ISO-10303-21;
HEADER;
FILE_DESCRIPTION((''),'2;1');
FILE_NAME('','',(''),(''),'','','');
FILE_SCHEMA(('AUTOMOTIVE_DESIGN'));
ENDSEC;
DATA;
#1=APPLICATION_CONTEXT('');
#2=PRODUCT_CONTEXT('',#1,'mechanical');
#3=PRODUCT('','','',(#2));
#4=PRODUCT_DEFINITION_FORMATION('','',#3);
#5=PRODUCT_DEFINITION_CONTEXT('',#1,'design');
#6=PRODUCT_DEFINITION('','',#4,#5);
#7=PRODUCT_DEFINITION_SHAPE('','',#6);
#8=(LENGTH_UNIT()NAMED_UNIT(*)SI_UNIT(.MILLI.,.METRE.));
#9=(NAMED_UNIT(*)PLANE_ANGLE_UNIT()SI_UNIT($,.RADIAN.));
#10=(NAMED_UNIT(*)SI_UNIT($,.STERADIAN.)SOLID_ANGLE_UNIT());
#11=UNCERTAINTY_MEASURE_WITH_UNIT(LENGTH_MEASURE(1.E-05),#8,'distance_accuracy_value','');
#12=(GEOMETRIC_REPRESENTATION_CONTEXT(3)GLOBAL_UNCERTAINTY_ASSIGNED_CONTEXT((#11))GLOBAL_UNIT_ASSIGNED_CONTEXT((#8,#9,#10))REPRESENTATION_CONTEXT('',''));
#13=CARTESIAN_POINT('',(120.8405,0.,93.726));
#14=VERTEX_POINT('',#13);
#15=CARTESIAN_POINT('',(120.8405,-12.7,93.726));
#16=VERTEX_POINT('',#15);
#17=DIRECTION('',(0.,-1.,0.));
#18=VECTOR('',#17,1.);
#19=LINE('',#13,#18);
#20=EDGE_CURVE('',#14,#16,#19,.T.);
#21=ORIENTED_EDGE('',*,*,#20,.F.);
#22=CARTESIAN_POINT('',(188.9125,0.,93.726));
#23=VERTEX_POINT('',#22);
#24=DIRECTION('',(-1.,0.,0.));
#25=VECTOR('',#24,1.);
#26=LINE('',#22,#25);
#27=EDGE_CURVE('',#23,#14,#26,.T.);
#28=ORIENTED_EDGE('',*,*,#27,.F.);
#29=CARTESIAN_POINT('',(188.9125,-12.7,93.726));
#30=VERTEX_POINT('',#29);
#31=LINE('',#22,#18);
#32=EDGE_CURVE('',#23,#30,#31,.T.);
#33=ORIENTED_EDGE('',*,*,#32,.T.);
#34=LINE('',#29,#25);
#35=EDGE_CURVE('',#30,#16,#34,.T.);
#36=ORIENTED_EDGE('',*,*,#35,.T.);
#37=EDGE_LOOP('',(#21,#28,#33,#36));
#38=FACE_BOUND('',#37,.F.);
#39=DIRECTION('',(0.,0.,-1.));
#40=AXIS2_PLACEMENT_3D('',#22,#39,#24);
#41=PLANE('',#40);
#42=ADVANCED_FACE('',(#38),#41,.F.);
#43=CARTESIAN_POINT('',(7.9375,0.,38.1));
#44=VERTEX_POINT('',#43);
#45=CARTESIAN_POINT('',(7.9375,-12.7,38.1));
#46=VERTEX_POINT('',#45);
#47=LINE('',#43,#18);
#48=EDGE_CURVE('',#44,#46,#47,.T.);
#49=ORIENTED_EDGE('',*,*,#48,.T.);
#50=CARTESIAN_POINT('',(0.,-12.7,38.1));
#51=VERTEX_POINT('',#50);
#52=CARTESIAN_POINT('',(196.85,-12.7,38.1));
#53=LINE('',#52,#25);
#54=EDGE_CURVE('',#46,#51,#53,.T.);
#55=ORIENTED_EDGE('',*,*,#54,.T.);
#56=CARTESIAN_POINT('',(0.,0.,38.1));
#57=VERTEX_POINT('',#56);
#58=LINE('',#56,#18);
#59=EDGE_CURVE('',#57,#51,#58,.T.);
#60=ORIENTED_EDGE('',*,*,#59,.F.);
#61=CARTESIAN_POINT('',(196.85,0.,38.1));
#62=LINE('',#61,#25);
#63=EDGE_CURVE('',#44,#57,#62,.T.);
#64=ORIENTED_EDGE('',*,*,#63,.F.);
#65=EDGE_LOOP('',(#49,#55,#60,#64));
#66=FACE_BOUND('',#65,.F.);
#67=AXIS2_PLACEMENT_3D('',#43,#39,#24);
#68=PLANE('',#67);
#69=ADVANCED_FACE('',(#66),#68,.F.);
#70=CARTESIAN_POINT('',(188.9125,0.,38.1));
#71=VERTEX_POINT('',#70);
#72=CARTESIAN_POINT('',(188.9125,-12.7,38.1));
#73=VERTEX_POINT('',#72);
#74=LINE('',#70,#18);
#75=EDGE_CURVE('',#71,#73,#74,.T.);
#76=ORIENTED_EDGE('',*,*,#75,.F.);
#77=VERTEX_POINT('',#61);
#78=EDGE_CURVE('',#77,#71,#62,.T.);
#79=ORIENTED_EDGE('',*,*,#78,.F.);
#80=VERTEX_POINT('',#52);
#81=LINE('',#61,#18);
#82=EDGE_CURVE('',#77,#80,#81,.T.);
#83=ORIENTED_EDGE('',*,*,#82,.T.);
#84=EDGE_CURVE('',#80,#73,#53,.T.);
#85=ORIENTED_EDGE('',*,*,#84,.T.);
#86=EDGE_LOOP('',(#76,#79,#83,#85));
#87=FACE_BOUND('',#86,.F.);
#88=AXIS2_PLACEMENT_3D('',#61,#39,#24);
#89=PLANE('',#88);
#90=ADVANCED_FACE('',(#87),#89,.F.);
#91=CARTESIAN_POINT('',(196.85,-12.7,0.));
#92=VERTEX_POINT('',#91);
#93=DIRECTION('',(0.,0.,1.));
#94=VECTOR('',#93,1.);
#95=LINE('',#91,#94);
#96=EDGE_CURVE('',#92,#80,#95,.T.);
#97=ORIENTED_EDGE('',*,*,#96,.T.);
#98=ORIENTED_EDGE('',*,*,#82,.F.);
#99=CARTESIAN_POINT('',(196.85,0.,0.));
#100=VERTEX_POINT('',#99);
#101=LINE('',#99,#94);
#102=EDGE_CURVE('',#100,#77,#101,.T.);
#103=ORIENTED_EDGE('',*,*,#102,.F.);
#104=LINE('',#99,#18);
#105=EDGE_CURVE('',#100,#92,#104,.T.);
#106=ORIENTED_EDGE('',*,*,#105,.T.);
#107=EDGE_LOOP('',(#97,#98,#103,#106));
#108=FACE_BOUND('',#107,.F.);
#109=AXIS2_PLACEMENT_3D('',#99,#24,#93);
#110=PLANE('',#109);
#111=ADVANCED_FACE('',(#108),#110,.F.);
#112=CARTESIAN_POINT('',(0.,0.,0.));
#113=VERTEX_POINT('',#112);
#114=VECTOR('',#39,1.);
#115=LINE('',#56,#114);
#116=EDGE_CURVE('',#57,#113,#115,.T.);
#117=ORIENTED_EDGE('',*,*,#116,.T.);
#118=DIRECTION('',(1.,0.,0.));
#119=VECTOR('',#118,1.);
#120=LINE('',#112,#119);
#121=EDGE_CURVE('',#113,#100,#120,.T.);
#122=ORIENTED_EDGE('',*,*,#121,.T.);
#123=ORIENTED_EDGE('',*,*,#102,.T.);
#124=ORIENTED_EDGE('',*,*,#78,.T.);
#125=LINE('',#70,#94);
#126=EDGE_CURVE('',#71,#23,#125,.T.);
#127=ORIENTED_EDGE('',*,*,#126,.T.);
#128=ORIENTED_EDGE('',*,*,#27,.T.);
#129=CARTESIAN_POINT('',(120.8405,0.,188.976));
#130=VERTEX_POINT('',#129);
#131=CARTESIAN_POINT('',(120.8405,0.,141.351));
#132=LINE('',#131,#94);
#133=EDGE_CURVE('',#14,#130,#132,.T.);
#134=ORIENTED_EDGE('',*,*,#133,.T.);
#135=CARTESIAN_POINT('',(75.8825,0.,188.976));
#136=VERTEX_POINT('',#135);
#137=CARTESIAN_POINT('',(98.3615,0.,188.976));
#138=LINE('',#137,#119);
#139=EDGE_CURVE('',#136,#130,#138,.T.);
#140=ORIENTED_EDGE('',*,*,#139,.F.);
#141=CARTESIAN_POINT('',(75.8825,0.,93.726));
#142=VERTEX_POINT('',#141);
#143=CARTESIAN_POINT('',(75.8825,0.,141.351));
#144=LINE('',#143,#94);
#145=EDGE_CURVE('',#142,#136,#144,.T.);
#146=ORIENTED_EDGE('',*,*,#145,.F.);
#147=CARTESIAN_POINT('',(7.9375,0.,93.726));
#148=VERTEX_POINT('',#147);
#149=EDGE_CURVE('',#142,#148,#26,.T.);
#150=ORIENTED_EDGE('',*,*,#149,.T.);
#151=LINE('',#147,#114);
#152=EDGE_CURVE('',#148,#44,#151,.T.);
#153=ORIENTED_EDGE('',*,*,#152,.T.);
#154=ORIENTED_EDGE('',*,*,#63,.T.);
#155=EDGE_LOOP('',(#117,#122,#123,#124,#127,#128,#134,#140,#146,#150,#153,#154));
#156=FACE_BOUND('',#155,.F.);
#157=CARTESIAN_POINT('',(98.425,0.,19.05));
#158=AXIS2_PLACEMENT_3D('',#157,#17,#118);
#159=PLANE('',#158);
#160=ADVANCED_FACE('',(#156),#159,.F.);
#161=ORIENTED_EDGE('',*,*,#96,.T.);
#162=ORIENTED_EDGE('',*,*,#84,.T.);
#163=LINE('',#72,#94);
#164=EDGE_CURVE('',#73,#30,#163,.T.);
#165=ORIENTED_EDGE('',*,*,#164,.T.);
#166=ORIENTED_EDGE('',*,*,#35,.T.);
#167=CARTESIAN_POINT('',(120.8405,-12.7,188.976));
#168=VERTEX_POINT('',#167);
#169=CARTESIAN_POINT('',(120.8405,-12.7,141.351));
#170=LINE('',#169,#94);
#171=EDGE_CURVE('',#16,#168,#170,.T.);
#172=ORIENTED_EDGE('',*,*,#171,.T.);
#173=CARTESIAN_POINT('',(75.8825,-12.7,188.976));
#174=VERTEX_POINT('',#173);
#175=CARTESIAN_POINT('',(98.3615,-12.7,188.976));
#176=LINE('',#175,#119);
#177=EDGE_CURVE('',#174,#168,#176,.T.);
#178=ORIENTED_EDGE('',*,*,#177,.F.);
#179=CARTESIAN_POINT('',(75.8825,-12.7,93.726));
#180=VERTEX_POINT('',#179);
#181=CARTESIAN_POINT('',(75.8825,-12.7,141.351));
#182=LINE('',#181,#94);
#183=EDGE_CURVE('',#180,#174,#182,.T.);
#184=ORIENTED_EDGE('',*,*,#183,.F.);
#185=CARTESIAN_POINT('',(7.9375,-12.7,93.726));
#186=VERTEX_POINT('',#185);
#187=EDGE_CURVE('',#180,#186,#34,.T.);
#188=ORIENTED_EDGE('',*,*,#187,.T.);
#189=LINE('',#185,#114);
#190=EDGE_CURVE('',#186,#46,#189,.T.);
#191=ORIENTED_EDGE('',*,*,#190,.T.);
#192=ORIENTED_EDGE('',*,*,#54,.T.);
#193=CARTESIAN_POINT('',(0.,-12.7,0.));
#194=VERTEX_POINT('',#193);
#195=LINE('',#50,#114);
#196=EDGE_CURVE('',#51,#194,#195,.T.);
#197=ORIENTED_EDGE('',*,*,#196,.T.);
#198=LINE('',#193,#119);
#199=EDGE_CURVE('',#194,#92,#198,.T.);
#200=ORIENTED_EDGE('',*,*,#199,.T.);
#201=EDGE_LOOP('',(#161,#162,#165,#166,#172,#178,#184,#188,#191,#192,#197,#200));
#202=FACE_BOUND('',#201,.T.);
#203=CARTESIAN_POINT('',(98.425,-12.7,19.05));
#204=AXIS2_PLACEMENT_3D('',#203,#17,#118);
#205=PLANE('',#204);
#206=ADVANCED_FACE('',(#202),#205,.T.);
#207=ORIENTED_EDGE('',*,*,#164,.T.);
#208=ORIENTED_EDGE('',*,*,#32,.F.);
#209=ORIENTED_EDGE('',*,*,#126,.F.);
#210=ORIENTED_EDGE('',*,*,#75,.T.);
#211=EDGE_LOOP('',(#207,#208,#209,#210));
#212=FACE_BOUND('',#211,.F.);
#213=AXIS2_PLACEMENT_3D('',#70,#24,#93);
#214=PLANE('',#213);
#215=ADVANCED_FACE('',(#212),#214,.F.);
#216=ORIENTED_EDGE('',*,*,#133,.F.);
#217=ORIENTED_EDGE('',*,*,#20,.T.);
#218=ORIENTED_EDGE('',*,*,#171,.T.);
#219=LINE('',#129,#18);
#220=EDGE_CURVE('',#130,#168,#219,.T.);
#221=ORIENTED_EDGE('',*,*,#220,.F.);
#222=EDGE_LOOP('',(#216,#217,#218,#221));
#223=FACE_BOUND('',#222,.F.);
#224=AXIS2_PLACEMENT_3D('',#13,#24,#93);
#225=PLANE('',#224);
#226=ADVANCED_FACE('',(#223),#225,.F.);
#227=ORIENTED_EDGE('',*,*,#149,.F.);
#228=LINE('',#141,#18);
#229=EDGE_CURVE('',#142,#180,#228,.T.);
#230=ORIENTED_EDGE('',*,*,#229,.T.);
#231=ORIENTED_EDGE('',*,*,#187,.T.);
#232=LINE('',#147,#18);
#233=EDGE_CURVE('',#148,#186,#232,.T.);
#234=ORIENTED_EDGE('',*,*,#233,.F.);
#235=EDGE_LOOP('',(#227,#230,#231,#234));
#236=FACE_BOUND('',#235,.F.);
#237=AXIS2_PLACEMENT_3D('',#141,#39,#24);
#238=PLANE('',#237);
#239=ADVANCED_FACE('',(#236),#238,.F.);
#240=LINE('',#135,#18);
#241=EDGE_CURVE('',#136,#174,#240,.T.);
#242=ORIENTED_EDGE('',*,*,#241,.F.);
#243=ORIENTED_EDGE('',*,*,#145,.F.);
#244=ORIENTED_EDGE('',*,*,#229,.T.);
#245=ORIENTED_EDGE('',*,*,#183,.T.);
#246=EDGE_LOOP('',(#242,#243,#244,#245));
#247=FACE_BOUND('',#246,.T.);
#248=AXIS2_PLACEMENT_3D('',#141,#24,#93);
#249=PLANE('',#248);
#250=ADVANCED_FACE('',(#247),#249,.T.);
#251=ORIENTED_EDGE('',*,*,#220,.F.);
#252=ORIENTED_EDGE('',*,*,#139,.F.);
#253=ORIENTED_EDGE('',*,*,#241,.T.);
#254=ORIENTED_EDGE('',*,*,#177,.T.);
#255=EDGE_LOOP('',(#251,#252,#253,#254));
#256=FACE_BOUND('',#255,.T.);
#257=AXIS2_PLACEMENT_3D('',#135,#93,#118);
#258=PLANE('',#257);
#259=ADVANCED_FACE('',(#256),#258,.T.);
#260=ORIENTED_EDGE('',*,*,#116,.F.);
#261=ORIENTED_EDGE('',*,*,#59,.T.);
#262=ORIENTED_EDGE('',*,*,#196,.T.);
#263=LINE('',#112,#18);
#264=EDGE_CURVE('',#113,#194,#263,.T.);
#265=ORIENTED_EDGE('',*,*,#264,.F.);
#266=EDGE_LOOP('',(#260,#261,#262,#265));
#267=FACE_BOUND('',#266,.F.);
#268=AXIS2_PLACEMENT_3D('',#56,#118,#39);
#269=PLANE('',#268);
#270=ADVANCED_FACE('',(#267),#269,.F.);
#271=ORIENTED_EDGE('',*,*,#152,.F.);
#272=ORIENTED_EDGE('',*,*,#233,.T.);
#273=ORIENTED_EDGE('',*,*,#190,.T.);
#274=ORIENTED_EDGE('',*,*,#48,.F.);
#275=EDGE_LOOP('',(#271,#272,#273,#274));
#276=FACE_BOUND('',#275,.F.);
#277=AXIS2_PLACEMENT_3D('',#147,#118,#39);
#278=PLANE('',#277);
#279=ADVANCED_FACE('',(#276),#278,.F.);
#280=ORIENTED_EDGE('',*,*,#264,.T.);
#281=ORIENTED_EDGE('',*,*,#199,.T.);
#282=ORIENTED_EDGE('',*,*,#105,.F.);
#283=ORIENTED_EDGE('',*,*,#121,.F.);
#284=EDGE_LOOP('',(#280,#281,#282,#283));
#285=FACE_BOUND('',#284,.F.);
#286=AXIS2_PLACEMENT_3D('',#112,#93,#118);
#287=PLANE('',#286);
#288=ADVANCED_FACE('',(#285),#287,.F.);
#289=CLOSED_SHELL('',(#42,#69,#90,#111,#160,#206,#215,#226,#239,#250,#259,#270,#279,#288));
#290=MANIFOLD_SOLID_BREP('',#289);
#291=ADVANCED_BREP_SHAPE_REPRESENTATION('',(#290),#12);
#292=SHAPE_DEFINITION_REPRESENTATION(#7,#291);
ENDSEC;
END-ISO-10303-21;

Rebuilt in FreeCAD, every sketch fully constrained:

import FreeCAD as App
import Part
import Sketcher

V = App.Vector
Q = App.Units.Quantity


def add_polygon(sketch, points):
    """Adds a closed chain of lines whose ends are joined by coincident constraints."""
    first, n = sketch.GeometryCount, len(points)
    for a, b in zip(points, points[1:] + points[:1]):
        sketch.addGeometry(Part.LineSegment(App.Vector(*a, 0), App.Vector(*b, 0)), False)
    for i in range(n):
        sketch.addConstraint(Sketcher.Constraint("Coincident", first + i, 2, first + (i + 1) % n, 1))

doc = App.newDocument("Part")
params = doc.addObject("Spreadsheet::Sheet", "Params")
for row, (alias, value) in enumerate([
    ("sketch1_height", "1.5 in"),
    ("sketch1_width", "7.75 in"),
    ("sketch1_width2", "2.68 in"),
    ("sketch1_width3", "1.77 in"),
    ("sketch1_height2", "2.19 in"),
    ("pad1_length", "0.5 in"),
], start=1):
    params.set(f"A{row}", alias)
    params.set(f"B{row}", "=" + value)
    params.setAlias(f"B{row}", alias)

body = doc.addObject("PartDesign::Body", "Body")

# Sketch on XZ plane
sketch1 = doc.addObject("Sketcher::SketchObject", "Sketch")
body.addObject(sketch1)
sketch1.AttachmentSupport = (doc.XZ_Plane, [""])
sketch1.MapMode = "FlatFace"
add_polygon(sketch1, [(0, 38), (0, 0), (197, 0), (197, 38), (189, 38), (189, 94), (121, 94), (121, 189), (76, 189), (76, 94), (8, 94), (8, 38)])  # lines 0-11
sketch1.addConstraint(Sketcher.Constraint("Vertical", 0))
sketch1.addConstraint(Sketcher.Constraint("Horizontal", 1))
sketch1.addConstraint(Sketcher.Constraint("Vertical", 2))
sketch1.addConstraint(Sketcher.Constraint("Horizontal", 3))
sketch1.addConstraint(Sketcher.Constraint("Vertical", 4))
sketch1.addConstraint(Sketcher.Constraint("Horizontal", 5))
sketch1.addConstraint(Sketcher.Constraint("Vertical", 6))
sketch1.addConstraint(Sketcher.Constraint("Horizontal", 7))
sketch1.addConstraint(Sketcher.Constraint("Vertical", 8))
sketch1.addConstraint(Sketcher.Constraint("Horizontal", 9))
sketch1.addConstraint(Sketcher.Constraint("Vertical", 10))
sketch1.addConstraint(Sketcher.Constraint("Horizontal", 11))
sketch1.addConstraint(Sketcher.Constraint("Coincident", 0, 2, -1, 1))
sketch1.addConstraint(Sketcher.Constraint("Horizontal", 5, 2, 8, 2))
sketch1.addConstraint(Sketcher.Constraint("Horizontal", 3, 2, 10, 2))
sketch1.addConstraint(Sketcher.Constraint("Equal", 3, 11))
sketch1.addConstraint(Sketcher.Constraint("DistanceY", 0, 2, 0, 1, Q("1.5 in")))
sketch1.addConstraint(Sketcher.Constraint("DistanceX", 1, 1, 1, 2, Q("7.75 in")))
sketch1.addConstraint(Sketcher.Constraint("DistanceX", 5, 2, 5, 1, Q("2.68 in")))
sketch1.addConstraint(Sketcher.Constraint("DistanceX", 7, 2, 7, 1, Q("1.77 in")))
sketch1.addConstraint(Sketcher.Constraint("DistanceY", 4, 1, 4, 2, Q("2.19 in")))
sketch1.addConstraint(Sketcher.Constraint("DistanceY", 6, 1, 6, 2, Q("3.75 in")))
sketch1.addConstraint(Sketcher.Constraint("DistanceX", 3, 2, 3, 1, Q("0.3125 in")))
sketch1.setExpression("Constraints[28]", "Params.sketch1_height")
sketch1.setExpression("Constraints[29]", "Params.sketch1_width")
sketch1.setExpression("Constraints[30]", "Params.sketch1_width2")
sketch1.setExpression("Constraints[31]", "Params.sketch1_width3")
sketch1.setExpression("Constraints[32]", "Params.sketch1_height2")
pad1 = doc.addObject("PartDesign::Pad", "Pad")
body.addObject(pad1)
pad1.Profile = sketch1
pad1.setExpression("Length", "Params.pad1_length")

doc.recompute()
